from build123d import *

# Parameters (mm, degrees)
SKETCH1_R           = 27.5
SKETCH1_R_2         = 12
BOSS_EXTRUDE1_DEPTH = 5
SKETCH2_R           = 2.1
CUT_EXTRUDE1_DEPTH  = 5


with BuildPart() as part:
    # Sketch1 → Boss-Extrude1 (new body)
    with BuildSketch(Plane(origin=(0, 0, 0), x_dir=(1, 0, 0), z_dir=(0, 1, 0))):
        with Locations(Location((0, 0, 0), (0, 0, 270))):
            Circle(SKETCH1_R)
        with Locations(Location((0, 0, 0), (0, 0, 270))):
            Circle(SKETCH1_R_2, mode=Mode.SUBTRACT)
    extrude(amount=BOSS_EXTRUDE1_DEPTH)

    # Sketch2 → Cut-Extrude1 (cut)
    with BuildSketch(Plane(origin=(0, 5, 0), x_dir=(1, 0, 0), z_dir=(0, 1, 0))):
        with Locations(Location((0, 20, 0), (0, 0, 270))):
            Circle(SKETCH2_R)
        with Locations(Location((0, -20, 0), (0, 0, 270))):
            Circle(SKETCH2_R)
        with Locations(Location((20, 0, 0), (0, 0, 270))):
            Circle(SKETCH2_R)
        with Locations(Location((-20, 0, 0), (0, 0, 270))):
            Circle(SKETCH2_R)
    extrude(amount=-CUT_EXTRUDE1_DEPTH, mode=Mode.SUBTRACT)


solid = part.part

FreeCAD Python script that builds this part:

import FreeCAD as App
import Part
import Sketcher
Q = App.Units.Quantity

doc = App.newDocument("Part")
body = doc.addObject("PartDesign::Body", "Body")

sketch1 = doc.addObject("Sketcher::SketchObject", "Sketch")
body.addObject(sketch1)
sketch1.AttachmentSupport = (doc.XZ_Plane, [""])
sketch1.MapMode = "FlatFace"
sketch1.addGeometry([
    Part.Circle(App.Vector(0, 0, 0), App.Vector(0, 0, 1), 28),
    Part.Circle(App.Vector(0, 0, 0), App.Vector(0, 0, 1), 12),
], False)
sketch1.addConstraint([
    Sketcher.Constraint("Coincident", 0, 3, -1, 1),
    Sketcher.Constraint("Coincident", 1, 3, -1, 1),
    Sketcher.Constraint("Diameter", 0, Q("55 mm")),
    Sketcher.Constraint("Diameter", 1, Q("24 mm")),
])
pad1 = doc.addObject("PartDesign::Pad", "Pad")
body.addObject(pad1)
pad1.Profile = sketch1
pad1.Length = 5
pad1.Reversed = True

sketch2 = doc.addObject("Sketcher::SketchObject", "Sketch001")
body.addObject(sketch2)
sketch2.AttachmentSupport = (doc.XZ_Plane, [""])
sketch2.MapMode = "FlatFace"
sketch2.AttachmentOffset = App.Placement(App.Vector(0, 0, -5), App.Rotation())
sketch2.addGeometry([
    Part.Circle(App.Vector(0, -20, 0), App.Vector(0, 0, 1), 2.1),
    Part.Circle(App.Vector(0, 20, 0), App.Vector(0, 0, 1), 2.1),
    Part.Circle(App.Vector(20, 0, 0), App.Vector(0, 0, 1), 2.1),
    Part.Circle(App.Vector(-20, 0, 0), App.Vector(0, 0, 1), 2.1),
], False)
sketch2.addConstraint([
    Sketcher.Constraint("Equal", 0, 1),
    Sketcher.Constraint("Equal", 1, 2),
    Sketcher.Constraint("Equal", 2, 3),
    Sketcher.Constraint("Symmetric", 0, 3, 1, 3, -1, 1),
    Sketcher.Constraint("Symmetric", 2, 3, 3, 3, -1, 1),
    Sketcher.Constraint("PointOnObject", 0, 3, -2),
    Sketcher.Constraint("PointOnObject", 2, 3, -1),
    Sketcher.Constraint("Diameter", 0, Q("4.2 mm")),
    Sketcher.Constraint("DistanceY", 0, 3, -1, 1, Q("20 mm")),
    Sketcher.Constraint("DistanceX", -1, 1, 2, 3, Q("20 mm")),
])
pocket1 = doc.addObject("PartDesign::Pocket", "Pocket")
body.addObject(pocket1)
pocket1.Profile = sketch2
pocket1.Length = 5
pocket1.Reversed = True

doc.recompute()
